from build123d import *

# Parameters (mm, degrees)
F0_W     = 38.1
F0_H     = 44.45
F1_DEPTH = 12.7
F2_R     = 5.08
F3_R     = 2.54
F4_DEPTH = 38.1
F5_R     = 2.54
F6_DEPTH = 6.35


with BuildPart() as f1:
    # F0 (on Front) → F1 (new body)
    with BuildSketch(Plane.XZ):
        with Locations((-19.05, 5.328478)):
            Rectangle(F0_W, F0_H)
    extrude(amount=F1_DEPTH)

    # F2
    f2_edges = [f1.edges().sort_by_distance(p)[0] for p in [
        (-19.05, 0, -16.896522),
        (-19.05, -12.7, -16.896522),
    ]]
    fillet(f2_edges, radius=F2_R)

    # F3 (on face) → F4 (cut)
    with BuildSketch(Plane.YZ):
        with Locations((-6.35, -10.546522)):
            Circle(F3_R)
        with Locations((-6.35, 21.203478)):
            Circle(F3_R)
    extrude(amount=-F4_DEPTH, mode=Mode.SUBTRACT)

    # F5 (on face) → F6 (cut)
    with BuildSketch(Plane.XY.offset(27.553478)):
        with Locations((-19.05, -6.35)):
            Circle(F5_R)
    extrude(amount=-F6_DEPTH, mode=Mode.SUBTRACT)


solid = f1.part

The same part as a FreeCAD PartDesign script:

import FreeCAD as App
import Part
import Sketcher
from FreeCAD import Vector
Q = App.Units.Quantity


def edges_at(feature, points):
    """Names of the edges that pass closest to the given points."""
    edges = feature.Shape.Edges
    near = lambda p: min(range(len(edges)), key=lambda i: edges[i].distToShape(Part.Vertex(*p))[0])
    return sorted({f"Edge{near(p) + 1}" for p in points})

doc = App.newDocument("Part")
body = doc.addObject("PartDesign::Body", "Body")

# Sketch on XZ plane
sketch1 = body.newObject("Sketcher::SketchObject", "Sketch")
sketch1.AttachmentSupport = (doc.getObject("XZ_Plane"), [""])
sketch1.MapMode = "FlatFace"
sketch1.addGeometry([
    Part.LineSegment(Vector(-38, 28, 0), Vector(-38, -17, 0)),
    Part.LineSegment(Vector(-38, -17, 0), Vector(0, -17, 0)),
    Part.LineSegment(Vector(0, -17, 0), Vector(0, 28, 0)),
    Part.LineSegment(Vector(0, 28, 0), Vector(-38, 28, 0)),
], False)
sketch1.addConstraint([
    Sketcher.Constraint("Coincident", 0, 2, 1, 1),
    Sketcher.Constraint("Coincident", 1, 2, 2, 1),
    Sketcher.Constraint("Coincident", 2, 2, 3, 1),
    Sketcher.Constraint("Coincident", 3, 2, 0, 1),
    Sketcher.Constraint("Vertical", 0),
    Sketcher.Constraint("Horizontal", 1),
    Sketcher.Constraint("Vertical", 2),
    Sketcher.Constraint("Horizontal", 3),
    Sketcher.Constraint("PointOnObject", 1, 2, -2),
    Sketcher.Constraint("DistanceX", 1, 1, 1, 2, Q("1.5 in")),
    Sketcher.Constraint("DistanceY", 0, 2, 0, 1, Q("1.75 in")),
    Sketcher.Constraint("DistanceY", 0, 2, -1, 1, 16.896522),
])
pad1 = body.newObject("PartDesign::Pad", "Pad")
pad1.Profile = sketch1
pad1.Length = Q("0.5 in")
doc.recompute()

fillet = body.newObject("PartDesign::Fillet", "Fillet")
fillet.Base = (pad1, edges_at(pad1, [(-19.05, 0, -16.897), (-19.05, -12.7, -16.897)]))
fillet.Radius = Q("0.2 in")

# Sketch on YZ plane
sketch2 = body.newObject("Sketcher::SketchObject", "Sketch001")
sketch2.AttachmentSupport = (doc.getObject("YZ_Plane"), [""])
sketch2.MapMode = "FlatFace"
sketch2.addGeometry([
    Part.Circle(Vector(-6.3, -10.5, 0), Vector(0, 0, 1), 2.5),
    Part.Circle(Vector(-6.3, 21.2, 0), Vector(0, 0, 1), 2.5),
], False)
sketch2.addConstraint([
    Sketcher.Constraint("Equal", 0, 1),
    Sketcher.Constraint("Vertical", 0, 3, 1, 3),
    Sketcher.Constraint("Diameter", 0, Q("0.2 in")),
    Sketcher.Constraint("DistanceX", 0, 3, -1, 1, Q("0.25 in")),
    Sketcher.Constraint("DistanceY", 0, 3, 1, 3, Q("1.25 in")),
    Sketcher.Constraint("DistanceY", -1, 1, 1, 3, 21.203478),
])
pocket1 = body.newObject("PartDesign::Pocket", "Pocket")
pocket1.Profile = sketch2
pocket1.Length = Q("1.5 in")

# Sketch on XY plane
sketch3 = body.newObject("Sketcher::SketchObject", "Sketch002")
sketch3.AttachmentSupport = (doc.getObject("XY_Plane"), [""])
sketch3.MapMode = "FlatFace"
sketch3.AttachmentOffset = App.Placement(Vector(0, 0, 27.553478), App.Rotation())
sketch3.addGeometry(Part.Circle(Vector(-19.1, -6.3, 0), Vector(0, 0, 1), 2.5), False)
sketch3.addConstraint([
    Sketcher.Constraint("Diameter", 0, Q("0.2 in")),
    Sketcher.Constraint("DistanceX", 0, 3, -1, 1, Q("0.75 in")),
    Sketcher.Constraint("DistanceY", 0, 3, -1, 1, Q("0.25 in")),
])
pocket2 = body.newObject("PartDesign::Pocket", "Pocket001")
pocket2.Profile = sketch3
pocket2.Length = Q("0.25 in")

doc.recompute()
